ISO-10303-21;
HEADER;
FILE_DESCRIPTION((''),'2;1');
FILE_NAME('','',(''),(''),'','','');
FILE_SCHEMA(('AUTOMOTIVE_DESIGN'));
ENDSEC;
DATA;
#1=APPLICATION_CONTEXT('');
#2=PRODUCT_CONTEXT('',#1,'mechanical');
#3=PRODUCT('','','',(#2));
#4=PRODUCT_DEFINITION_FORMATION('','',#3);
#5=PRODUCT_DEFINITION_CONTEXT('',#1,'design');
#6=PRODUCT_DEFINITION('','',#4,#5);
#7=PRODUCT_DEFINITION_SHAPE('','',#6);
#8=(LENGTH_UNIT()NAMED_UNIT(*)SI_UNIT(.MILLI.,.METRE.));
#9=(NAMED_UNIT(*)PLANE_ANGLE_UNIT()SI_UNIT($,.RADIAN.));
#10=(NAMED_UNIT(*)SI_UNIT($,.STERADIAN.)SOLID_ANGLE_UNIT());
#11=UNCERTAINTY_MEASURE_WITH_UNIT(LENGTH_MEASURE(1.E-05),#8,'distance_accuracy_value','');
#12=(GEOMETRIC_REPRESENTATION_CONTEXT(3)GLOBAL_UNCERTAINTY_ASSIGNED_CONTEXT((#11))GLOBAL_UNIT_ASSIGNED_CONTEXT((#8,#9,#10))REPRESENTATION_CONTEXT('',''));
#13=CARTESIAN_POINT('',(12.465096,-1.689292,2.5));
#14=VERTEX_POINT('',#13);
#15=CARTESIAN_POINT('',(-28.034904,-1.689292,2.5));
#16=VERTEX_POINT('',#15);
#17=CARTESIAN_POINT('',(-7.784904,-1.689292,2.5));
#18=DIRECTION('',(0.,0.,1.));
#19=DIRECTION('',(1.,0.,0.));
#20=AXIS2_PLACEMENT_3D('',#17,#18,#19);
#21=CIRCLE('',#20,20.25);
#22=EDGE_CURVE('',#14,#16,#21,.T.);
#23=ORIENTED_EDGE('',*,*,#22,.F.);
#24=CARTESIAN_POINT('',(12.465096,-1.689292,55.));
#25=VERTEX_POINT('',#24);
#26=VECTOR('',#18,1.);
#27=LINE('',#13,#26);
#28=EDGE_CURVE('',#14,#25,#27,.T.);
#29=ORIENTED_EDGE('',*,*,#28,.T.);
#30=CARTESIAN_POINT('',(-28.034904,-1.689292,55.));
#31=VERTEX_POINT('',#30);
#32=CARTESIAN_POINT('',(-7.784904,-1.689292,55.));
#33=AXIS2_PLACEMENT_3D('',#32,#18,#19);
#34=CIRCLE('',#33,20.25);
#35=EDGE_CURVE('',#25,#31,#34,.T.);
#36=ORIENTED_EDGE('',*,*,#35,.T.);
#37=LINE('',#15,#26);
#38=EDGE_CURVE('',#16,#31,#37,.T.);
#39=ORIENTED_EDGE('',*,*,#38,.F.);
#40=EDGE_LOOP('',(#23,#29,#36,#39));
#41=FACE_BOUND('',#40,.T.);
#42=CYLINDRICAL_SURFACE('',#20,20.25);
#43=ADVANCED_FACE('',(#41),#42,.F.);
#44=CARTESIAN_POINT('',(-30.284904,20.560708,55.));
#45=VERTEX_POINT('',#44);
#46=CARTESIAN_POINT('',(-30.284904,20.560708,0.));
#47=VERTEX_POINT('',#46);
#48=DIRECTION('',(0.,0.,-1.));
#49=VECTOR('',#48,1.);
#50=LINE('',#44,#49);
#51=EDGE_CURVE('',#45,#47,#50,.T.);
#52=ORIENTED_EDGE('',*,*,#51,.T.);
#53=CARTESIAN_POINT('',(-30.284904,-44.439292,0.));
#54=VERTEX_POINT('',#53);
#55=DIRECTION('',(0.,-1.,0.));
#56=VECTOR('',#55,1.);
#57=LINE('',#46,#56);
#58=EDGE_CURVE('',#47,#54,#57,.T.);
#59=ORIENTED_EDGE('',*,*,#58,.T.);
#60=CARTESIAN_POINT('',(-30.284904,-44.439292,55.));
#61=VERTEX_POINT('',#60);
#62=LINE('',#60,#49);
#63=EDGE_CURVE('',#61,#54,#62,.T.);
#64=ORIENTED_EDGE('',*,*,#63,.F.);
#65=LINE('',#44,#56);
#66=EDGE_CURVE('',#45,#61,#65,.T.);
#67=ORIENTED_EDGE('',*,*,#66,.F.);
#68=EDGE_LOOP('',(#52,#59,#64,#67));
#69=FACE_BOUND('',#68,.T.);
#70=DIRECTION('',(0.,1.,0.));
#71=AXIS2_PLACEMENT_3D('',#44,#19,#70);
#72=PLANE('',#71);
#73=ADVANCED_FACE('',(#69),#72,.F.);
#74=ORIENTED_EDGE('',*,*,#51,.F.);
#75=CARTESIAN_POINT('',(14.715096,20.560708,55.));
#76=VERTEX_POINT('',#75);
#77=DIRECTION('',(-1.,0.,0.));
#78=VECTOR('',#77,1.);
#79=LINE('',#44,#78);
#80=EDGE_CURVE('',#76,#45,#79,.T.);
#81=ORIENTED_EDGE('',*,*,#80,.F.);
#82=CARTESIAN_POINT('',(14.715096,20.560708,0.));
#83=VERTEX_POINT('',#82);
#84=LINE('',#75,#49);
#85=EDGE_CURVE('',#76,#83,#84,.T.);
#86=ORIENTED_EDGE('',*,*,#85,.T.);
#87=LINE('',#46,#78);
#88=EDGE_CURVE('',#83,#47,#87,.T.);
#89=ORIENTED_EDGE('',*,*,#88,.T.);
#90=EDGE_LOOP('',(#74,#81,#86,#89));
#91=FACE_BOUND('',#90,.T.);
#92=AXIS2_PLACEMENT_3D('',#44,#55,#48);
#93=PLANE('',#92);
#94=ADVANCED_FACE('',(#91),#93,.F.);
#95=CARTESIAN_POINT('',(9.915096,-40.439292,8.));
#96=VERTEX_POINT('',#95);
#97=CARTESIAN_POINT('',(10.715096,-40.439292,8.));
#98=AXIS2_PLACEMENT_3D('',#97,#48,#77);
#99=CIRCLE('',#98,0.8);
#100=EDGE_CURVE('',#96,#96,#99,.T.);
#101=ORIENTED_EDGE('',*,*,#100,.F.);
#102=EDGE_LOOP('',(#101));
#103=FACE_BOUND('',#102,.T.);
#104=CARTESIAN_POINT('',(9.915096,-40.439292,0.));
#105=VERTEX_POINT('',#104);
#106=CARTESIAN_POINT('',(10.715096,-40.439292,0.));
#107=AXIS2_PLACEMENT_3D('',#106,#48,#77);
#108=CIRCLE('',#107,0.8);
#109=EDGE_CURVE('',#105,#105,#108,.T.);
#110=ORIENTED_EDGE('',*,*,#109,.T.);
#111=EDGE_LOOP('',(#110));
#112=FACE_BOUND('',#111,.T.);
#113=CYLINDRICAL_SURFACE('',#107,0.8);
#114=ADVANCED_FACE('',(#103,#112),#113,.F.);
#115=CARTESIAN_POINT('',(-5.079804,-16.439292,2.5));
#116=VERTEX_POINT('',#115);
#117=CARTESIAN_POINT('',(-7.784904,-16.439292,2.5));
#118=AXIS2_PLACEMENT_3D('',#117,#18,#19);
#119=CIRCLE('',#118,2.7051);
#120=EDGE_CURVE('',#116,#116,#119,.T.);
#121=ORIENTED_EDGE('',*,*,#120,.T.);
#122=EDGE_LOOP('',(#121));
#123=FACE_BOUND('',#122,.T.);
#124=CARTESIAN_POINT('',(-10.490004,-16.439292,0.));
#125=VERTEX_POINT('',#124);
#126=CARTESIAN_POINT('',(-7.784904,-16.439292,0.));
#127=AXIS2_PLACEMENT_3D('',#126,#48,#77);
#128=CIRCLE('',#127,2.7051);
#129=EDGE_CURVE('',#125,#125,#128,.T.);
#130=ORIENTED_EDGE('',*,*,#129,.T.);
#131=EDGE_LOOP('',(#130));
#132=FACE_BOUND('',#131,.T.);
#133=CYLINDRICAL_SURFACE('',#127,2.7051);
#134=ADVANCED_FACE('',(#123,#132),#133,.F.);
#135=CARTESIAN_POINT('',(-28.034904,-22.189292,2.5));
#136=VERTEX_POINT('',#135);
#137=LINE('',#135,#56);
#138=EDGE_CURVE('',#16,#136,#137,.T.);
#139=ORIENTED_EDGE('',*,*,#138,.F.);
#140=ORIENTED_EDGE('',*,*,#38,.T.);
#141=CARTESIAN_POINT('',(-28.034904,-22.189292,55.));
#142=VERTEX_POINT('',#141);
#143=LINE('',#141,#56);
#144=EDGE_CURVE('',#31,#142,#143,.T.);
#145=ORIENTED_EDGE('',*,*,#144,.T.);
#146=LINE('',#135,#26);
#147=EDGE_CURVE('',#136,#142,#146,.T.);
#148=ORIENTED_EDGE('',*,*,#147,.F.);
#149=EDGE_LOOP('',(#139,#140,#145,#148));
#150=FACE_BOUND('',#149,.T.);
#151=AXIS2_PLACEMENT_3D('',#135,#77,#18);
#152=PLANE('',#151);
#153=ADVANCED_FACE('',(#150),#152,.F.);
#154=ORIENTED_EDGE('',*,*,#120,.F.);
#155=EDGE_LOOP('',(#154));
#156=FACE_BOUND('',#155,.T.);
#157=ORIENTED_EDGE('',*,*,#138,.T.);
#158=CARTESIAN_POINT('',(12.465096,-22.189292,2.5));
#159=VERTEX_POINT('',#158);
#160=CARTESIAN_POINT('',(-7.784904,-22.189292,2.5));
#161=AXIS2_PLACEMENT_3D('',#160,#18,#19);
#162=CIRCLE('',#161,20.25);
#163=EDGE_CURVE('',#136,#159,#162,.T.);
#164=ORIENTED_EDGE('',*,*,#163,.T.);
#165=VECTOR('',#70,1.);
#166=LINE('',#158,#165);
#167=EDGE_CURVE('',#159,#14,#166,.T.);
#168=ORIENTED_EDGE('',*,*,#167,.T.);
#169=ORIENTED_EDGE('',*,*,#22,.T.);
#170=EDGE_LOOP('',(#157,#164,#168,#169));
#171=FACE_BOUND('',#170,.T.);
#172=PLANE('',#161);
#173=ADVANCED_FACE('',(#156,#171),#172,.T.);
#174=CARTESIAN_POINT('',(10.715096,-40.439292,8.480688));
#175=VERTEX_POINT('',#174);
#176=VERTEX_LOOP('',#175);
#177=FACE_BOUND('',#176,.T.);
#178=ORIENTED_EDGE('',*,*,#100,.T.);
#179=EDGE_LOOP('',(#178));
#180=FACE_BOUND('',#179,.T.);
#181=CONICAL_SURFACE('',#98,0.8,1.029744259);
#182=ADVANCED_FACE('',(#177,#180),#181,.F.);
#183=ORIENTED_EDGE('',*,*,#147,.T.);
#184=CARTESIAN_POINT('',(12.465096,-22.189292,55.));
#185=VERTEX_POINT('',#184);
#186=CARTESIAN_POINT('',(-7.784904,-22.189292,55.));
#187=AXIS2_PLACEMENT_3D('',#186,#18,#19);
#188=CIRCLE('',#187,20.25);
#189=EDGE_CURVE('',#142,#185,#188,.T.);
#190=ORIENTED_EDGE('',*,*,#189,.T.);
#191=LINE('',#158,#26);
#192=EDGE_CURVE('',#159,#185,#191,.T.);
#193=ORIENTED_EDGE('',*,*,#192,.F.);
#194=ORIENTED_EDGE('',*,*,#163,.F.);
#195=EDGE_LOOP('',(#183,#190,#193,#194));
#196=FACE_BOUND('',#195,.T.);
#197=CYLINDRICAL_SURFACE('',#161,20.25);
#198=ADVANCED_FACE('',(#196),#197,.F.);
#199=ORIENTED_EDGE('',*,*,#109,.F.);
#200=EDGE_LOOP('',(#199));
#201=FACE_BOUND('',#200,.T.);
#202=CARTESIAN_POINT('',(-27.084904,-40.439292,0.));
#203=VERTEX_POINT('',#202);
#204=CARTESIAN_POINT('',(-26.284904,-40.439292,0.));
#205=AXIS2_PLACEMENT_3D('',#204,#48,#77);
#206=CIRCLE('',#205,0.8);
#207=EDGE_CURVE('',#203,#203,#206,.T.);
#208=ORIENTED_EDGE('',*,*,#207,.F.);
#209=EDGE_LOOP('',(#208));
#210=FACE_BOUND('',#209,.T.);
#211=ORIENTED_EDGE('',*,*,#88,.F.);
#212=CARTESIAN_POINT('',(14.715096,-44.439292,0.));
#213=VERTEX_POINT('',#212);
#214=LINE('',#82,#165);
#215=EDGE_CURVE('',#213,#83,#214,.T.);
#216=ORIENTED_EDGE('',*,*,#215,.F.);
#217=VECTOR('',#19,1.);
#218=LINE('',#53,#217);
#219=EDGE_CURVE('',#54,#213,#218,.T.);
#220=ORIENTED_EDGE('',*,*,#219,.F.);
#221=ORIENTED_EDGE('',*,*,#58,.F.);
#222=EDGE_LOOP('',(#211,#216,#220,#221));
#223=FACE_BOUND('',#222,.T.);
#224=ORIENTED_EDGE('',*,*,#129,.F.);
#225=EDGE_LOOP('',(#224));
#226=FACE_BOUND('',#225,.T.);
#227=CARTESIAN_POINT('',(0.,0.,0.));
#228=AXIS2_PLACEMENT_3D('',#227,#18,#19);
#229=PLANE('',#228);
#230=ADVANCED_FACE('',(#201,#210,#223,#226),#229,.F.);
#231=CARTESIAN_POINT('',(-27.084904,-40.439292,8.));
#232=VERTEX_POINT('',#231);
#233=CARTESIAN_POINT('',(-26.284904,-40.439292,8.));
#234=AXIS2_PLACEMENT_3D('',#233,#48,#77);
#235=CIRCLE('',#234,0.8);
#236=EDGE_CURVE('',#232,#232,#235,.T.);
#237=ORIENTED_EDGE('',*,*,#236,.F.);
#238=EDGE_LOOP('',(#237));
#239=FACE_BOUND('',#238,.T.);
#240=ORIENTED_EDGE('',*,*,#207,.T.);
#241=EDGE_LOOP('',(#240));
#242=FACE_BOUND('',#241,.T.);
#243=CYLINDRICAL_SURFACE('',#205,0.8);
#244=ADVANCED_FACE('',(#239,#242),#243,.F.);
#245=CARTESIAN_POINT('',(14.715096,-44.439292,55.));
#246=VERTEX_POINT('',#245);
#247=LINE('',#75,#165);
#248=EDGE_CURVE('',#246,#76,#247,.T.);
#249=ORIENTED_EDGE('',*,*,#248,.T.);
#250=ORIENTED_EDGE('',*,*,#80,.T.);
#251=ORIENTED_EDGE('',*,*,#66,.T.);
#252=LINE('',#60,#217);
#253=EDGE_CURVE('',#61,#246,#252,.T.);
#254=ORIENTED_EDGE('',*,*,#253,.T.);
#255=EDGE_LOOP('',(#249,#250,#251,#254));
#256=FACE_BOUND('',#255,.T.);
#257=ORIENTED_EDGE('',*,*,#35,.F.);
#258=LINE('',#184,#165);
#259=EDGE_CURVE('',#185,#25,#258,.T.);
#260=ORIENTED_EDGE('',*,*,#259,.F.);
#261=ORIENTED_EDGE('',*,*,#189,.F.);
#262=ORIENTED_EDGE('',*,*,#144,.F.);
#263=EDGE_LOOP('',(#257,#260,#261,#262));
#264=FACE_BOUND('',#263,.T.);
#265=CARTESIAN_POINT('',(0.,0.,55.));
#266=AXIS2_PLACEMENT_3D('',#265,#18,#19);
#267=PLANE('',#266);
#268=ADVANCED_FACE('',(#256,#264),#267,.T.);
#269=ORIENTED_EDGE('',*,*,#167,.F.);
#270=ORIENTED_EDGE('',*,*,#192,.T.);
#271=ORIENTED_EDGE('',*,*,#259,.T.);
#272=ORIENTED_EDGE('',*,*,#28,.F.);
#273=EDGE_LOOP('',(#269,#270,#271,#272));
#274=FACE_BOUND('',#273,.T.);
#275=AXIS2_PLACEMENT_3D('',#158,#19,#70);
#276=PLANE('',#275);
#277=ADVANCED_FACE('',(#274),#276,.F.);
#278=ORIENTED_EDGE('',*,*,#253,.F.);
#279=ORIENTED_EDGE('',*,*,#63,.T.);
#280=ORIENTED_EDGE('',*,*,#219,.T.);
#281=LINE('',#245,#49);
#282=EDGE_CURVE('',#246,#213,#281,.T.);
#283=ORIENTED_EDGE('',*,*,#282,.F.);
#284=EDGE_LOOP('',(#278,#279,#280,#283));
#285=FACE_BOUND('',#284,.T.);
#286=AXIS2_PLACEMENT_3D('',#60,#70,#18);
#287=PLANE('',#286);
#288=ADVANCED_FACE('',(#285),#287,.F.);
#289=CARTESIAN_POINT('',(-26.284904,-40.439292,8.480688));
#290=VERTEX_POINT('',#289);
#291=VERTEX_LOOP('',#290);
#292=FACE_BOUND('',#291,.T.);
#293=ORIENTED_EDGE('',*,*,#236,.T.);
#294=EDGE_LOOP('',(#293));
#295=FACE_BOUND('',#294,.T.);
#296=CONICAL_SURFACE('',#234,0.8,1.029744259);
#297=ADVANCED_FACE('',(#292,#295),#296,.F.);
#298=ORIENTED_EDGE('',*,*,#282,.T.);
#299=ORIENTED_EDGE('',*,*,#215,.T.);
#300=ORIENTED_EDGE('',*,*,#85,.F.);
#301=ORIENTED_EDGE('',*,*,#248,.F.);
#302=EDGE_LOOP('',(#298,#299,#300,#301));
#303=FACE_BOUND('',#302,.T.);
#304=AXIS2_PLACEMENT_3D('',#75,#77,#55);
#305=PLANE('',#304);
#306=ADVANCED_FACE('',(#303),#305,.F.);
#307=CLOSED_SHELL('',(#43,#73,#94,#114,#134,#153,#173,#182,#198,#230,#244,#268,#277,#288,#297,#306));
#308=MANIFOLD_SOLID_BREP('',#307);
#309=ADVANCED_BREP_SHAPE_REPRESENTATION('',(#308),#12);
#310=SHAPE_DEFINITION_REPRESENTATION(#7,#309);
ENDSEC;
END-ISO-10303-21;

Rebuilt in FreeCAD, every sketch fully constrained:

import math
import FreeCAD as App
import Part
import Sketcher

V = App.Vector

doc = App.newDocument("Part")
params = doc.addObject("Spreadsheet::Sheet", "Params")
for row, (alias, value) in enumerate([
    ("sketch1_width", "45 mm"),
    ("sketch1_height", "65 mm"),
    ("pad1_length", "55 mm"),
    ("sketch2_radius", "20.25 mm"),
    ("sketch2_height", "20.5 mm"),
    ("pocket1_length", "52.5 mm"),
    ("hole_diameter", "5.4102 mm"),
    ("sketch4_diameter", "1.6 mm"),
    ("hole2_diameter", "1.6 mm"),
    ("hole2_depth", "8 mm"),
    ("sketch5_diameter", "1.6 mm"),
    ("hole3_diameter", "1.6 mm"),
    ("hole3_depth", "8 mm"),
], start=1):
    params.set(f"A{row}", alias)
    params.set(f"B{row}", "=" + value)
    params.setAlias(f"B{row}", alias)

body = doc.addObject("PartDesign::Body", "Body")

sketch1 = body.newObject("Sketcher::SketchObject", "Sketch")
sketch1.AttachmentSupport = (doc.getObject("XY_Plane"), [""])
sketch1.MapMode = "FlatFace"
sketch1.addGeometry(Part.LineSegment(V(-30, 21, 0), V(-30, -44, 0)), False)
sketch1.addGeometry(Part.LineSegment(V(-30, -44, 0), V(15, -44, 0)), False)
sketch1.addGeometry(Part.LineSegment(V(15, -44, 0), V(15, 21, 0)), False)
sketch1.addGeometry(Part.LineSegment(V(15, 21, 0), V(-30, 21, 0)), False)
sketch1.addConstraint(Sketcher.Constraint("Coincident", 0, 2, 1, 1))
sketch1.addConstraint(Sketcher.Constraint("Coincident", 1, 2, 2, 1))
sketch1.addConstraint(Sketcher.Constraint("Coincident", 2, 2, 3, 1))
sketch1.addConstraint(Sketcher.Constraint("Coincident", 3, 2, 0, 1))
sketch1.addConstraint(Sketcher.Constraint("Vertical", 0))
sketch1.addConstraint(Sketcher.Constraint("Horizontal", 1))
sketch1.addConstraint(Sketcher.Constraint("Vertical", 2))
sketch1.addConstraint(Sketcher.Constraint("Horizontal", 3))
sketch1.addConstraint(Sketcher.Constraint("DistanceX", 1, 1, 1, 2, 45.0))
sketch1.addConstraint(Sketcher.Constraint("DistanceY", 0, 2, 0, 1, 65.0))
sketch1.addConstraint(Sketcher.Constraint("DistanceY", 0, 2, -1, 1, 44.439292))
sketch1.addConstraint(Sketcher.Constraint("DistanceX", 0, 2, -1, 1, 30.284904))
sketch1.setExpression("Constraints[8]", "Params.sketch1_width")
sketch1.setExpression("Constraints[9]", "Params.sketch1_height")
pad1 = body.newObject("PartDesign::Pad", "Pad")
pad1.Profile = sketch1
pad1.setExpression("Length", "Params.pad1_length")

sketch2 = body.newObject("Sketcher::SketchObject", "Sketch001")
sketch2.AttachmentSupport = (doc.getObject("XY_Plane"), [""])
sketch2.MapMode = "FlatFace"
sketch2.AttachmentOffset = App.Placement(V(0, 0, 55), App.Rotation())
sketch2.addGeometry(Part.LineSegment(V(-28, -2, 0), V(-28, -22, 0)), False)
sketch2.addGeometry(Part.ArcOfCircle(Part.Circle(V(-8, -22, 0), V(0, 0, 1), 20), math.radians(180), math.radians(360)), False)
sketch2.addGeometry(Part.LineSegment(V(12, -22, 0), V(12, -2, 0)), False)
sketch2.addGeometry(Part.ArcOfCircle(Part.Circle(V(-8, -2, 0), V(0, 0, 1), 20), math.radians(0), math.radians(180)), False)
sketch2.addConstraint(Sketcher.Constraint("Tangent", 0, 2, 1, 1))
sketch2.addConstraint(Sketcher.Constraint("Tangent", 1, 2, 2, 1))
sketch2.addConstraint(Sketcher.Constraint("Tangent", 2, 2, 3, 1))
sketch2.addConstraint(Sketcher.Constraint("Tangent", 3, 2, 0, 1))
sketch2.addConstraint(Sketcher.Constraint("Vertical", 0))
sketch2.addConstraint(Sketcher.Constraint("Vertical", 2))
sketch2.addConstraint(Sketcher.Constraint("Radius", 1, 20.25))
sketch2.addConstraint(Sketcher.Constraint("DistanceY", 0, 2, 0, 1, 20.5))
sketch2.addConstraint(Sketcher.Constraint("DistanceY", 1, 3, -1, 1, 22.189292))
sketch2.addConstraint(Sketcher.Constraint("DistanceX", 1, 3, -1, 1, 7.784904))
sketch2.setExpression("Constraints[6]", "Params.sketch2_radius")
sketch2.setExpression("Constraints[7]", "Params.sketch2_height")
pocket1 = body.newObject("PartDesign::Pocket", "Pocket")
pocket1.Profile = sketch2
pocket1.setExpression("Length", "Params.pocket1_length")

sketch3 = body.newObject("Sketcher::SketchObject", "Sketch002")
sketch3.AttachmentSupport = (doc.getObject("XY_Plane"), [""])
sketch3.MapMode = "FlatFace"
sketch3.addGeometry(Part.Circle(V(-7.8, -16.4, 0), V(0, 0, 1), 2.7), False)
sketch3.addConstraint(Sketcher.Constraint("Diameter", 0, 5.4102))
sketch3.addConstraint(Sketcher.Constraint("DistanceY", 0, 3, -1, 1, 16.439292))
sketch3.addConstraint(Sketcher.Constraint("DistanceX", 0, 3, -1, 1, 7.784904))
doc.recompute()
hole = body.newObject("PartDesign::Hole", "Hole")
hole.Profile = sketch3
hole.ThreadType = "None"
hole.setExpression("Diameter", "Params.hole_diameter")
hole.DepthType = "ThroughAll"
hole.Reversed = True

sketch4 = body.newObject("Sketcher::SketchObject", "Sketch003")
sketch4.AttachmentSupport = (doc.getObject("XY_Plane"), [""])
sketch4.MapMode = "FlatFace"
sketch4.addGeometry(Part.Circle(V(10.7, -40.4, 0), V(0, 0, 1), 0.8), False)
sketch4.addConstraint(Sketcher.Constraint("Diameter", 0, 1.6))
sketch4.addConstraint(Sketcher.Constraint("DistanceY", 0, 3, -1, 1, 40.439292))
sketch4.addConstraint(Sketcher.Constraint("DistanceX", -1, 1, 0, 3, 10.715096))
sketch4.setExpression("Constraints[0]", "Params.sketch4_diameter")
doc.recompute()
hole2 = body.newObject("PartDesign::Hole", "Hole001")
hole2.Profile = sketch4
hole2.ThreadType = "None"
hole2.setExpression("Diameter", "Params.hole2_diameter")
hole2.DepthType = "Dimension"
hole2.setExpression("Depth", "Params.hole2_depth")
hole2.DrillPoint = "Angled"
hole2.DrillPointAngle = 118
hole2.Reversed = True

sketch5 = body.newObject("Sketcher::SketchObject", "Sketch004")
sketch5.AttachmentSupport = (doc.getObject("XY_Plane"), [""])
sketch5.MapMode = "FlatFace"
sketch5.addGeometry(Part.Circle(V(-26.3, -40.4, 0), V(0, 0, 1), 0.8), False)
sketch5.addConstraint(Sketcher.Constraint("Diameter", 0, 1.6))
sketch5.addConstraint(Sketcher.Constraint("DistanceY", 0, 3, -1, 1, 40.439292))
sketch5.addConstraint(Sketcher.Constraint("DistanceX", 0, 3, -1, 1, 26.284904))
sketch5.setExpression("Constraints[0]", "Params.sketch5_diameter")
doc.recompute()
hole3 = body.newObject("PartDesign::Hole", "Hole002")
hole3.Profile = sketch5
hole3.ThreadType = "None"
hole3.setExpression("Diameter", "Params.hole3_diameter")
hole3.DepthType = "Dimension"
hole3.setExpression("Depth", "Params.hole3_depth")
hole3.DrillPoint = "Angled"
hole3.DrillPointAngle = 118
hole3.Reversed = True

doc.recompute()
